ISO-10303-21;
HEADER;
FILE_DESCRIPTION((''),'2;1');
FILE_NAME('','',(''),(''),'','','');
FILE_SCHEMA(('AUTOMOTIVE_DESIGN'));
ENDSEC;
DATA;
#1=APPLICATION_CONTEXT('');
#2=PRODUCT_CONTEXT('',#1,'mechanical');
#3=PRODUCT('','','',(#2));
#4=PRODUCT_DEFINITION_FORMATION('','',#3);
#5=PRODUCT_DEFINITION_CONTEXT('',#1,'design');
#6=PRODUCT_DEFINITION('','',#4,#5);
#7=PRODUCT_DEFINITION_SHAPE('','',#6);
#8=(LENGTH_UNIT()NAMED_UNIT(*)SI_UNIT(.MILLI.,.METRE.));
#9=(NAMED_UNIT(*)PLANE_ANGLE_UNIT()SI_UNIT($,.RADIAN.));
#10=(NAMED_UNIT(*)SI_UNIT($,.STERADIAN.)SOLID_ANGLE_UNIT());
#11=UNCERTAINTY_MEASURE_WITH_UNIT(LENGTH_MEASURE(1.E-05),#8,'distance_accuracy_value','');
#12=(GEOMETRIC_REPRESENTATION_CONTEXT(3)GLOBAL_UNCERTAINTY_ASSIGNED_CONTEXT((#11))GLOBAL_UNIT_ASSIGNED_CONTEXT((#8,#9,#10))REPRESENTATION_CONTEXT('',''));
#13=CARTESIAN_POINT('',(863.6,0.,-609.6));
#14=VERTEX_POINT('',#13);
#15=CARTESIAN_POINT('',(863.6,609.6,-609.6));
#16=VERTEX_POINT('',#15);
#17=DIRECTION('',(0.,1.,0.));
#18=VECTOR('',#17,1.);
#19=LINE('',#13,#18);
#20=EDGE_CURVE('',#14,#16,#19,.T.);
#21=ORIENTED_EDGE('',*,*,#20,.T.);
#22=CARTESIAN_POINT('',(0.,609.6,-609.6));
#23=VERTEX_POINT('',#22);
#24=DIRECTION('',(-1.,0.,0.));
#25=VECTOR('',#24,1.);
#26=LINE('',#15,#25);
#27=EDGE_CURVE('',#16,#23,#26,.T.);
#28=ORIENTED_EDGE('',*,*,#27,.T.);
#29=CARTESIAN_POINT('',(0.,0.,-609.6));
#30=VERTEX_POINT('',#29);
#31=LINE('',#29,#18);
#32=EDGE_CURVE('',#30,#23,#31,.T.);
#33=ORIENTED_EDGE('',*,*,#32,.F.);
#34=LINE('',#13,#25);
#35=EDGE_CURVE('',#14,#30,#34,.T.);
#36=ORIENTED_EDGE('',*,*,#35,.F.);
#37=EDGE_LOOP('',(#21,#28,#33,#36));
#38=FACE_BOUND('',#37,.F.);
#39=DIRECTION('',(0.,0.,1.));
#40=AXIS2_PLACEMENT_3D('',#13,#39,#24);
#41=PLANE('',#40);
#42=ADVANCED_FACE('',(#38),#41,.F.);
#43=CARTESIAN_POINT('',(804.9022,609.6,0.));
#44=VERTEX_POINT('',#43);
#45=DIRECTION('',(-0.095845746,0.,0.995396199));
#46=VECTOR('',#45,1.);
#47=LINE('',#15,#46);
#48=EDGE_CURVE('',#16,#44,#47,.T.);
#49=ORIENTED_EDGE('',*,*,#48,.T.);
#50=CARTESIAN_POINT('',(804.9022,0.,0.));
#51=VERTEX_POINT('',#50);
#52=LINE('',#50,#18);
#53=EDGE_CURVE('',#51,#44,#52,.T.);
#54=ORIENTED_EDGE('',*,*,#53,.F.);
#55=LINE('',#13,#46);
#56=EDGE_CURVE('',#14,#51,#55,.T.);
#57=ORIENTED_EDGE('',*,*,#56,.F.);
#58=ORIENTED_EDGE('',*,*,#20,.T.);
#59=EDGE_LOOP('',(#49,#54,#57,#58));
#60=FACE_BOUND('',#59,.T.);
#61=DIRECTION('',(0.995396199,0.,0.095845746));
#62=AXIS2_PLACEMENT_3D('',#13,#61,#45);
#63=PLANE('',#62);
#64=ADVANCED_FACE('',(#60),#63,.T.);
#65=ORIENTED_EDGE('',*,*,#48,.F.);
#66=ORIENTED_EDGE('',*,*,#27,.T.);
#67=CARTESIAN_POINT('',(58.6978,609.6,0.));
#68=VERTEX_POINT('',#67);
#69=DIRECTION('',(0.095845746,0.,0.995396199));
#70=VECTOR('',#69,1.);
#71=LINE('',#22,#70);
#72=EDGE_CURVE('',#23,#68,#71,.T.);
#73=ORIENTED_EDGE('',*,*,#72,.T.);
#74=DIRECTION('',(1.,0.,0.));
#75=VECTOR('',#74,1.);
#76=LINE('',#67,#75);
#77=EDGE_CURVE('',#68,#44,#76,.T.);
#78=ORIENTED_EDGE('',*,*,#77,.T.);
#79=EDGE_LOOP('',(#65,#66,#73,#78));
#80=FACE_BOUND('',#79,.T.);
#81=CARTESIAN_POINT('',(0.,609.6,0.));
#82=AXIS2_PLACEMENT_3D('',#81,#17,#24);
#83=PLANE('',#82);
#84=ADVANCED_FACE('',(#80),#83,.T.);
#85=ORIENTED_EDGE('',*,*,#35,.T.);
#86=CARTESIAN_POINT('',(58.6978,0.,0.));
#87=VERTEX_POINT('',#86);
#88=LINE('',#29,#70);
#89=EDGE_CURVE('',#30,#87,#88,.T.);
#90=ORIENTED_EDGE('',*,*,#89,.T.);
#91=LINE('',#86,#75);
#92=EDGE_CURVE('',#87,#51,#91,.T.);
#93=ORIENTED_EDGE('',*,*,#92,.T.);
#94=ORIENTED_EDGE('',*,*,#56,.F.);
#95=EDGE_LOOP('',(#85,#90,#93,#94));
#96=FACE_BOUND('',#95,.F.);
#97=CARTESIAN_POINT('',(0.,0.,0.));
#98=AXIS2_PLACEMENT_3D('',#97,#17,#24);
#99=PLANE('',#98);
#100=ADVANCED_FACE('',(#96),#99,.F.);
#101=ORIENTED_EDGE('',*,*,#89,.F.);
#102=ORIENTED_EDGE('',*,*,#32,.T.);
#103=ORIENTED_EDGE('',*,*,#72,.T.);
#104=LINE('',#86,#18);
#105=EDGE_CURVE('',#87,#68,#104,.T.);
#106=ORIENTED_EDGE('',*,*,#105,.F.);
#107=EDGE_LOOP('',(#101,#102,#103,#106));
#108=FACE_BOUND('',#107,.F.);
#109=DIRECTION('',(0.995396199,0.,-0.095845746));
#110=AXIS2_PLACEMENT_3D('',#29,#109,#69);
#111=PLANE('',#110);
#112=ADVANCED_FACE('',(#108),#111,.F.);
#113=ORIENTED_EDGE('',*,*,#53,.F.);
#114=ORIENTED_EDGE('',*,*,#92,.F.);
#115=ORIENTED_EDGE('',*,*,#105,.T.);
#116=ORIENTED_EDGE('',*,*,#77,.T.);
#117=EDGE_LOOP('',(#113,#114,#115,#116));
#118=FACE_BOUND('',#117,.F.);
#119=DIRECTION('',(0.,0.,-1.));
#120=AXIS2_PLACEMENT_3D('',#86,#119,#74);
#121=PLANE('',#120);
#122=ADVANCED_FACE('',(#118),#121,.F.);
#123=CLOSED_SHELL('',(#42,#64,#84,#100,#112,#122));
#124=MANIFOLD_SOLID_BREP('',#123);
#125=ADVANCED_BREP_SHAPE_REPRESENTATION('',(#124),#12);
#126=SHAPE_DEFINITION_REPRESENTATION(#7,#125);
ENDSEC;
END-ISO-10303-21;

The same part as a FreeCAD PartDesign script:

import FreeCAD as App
import Part
import Sketcher
Q = App.Units.Quantity


def add_polygon(sketch, points):
    """Adds a closed chain of lines whose ends are joined by coincident constraints."""
    first, n = sketch.GeometryCount, len(points)
    for a, b in zip(points, points[1:] + points[:1]):
        sketch.addGeometry(Part.LineSegment(App.Vector(*a, 0), App.Vector(*b, 0)), False)
    for i in range(n):
        sketch.addConstraint(Sketcher.Constraint("Coincident", first + i, 2, first + (i + 1) % n, 1))

doc = App.newDocument("Part")
body = doc.addObject("PartDesign::Body", "Body")

sketch1 = body.newObject("Sketcher::SketchObject", "Sketch")
sketch1.AttachmentSupport = (doc.getObject("XZ_Plane"), [""])
sketch1.MapMode = "FlatFace"
add_polygon(sketch1, [(0, -609.6), (58.6978, 0), (804.9022, 0), (863.6, -609.6)])
sketch1.addConstraint([
    Sketcher.Constraint("Horizontal", 1),
    Sketcher.Constraint("Horizontal", 3),
    Sketcher.Constraint("PointOnObject", 0, 2, -1),
    Sketcher.Constraint("PointOnObject", 3, 2, -2),
    Sketcher.Constraint("Equal", 0, 2),
    Sketcher.Constraint("DistanceX", 3, 2, 3, 1, Q("34 in")),
    Sketcher.Constraint("DistanceY", 2, 2, -1, 1, Q("24 in")),
    Sketcher.Constraint("Angle", 0, Q("84.5 deg")),
])
pad1 = body.newObject("PartDesign::Pad", "Pad")
pad1.Profile = sketch1
pad1.Length = Q("24 in")
pad1.Reversed = True

doc.recompute()
